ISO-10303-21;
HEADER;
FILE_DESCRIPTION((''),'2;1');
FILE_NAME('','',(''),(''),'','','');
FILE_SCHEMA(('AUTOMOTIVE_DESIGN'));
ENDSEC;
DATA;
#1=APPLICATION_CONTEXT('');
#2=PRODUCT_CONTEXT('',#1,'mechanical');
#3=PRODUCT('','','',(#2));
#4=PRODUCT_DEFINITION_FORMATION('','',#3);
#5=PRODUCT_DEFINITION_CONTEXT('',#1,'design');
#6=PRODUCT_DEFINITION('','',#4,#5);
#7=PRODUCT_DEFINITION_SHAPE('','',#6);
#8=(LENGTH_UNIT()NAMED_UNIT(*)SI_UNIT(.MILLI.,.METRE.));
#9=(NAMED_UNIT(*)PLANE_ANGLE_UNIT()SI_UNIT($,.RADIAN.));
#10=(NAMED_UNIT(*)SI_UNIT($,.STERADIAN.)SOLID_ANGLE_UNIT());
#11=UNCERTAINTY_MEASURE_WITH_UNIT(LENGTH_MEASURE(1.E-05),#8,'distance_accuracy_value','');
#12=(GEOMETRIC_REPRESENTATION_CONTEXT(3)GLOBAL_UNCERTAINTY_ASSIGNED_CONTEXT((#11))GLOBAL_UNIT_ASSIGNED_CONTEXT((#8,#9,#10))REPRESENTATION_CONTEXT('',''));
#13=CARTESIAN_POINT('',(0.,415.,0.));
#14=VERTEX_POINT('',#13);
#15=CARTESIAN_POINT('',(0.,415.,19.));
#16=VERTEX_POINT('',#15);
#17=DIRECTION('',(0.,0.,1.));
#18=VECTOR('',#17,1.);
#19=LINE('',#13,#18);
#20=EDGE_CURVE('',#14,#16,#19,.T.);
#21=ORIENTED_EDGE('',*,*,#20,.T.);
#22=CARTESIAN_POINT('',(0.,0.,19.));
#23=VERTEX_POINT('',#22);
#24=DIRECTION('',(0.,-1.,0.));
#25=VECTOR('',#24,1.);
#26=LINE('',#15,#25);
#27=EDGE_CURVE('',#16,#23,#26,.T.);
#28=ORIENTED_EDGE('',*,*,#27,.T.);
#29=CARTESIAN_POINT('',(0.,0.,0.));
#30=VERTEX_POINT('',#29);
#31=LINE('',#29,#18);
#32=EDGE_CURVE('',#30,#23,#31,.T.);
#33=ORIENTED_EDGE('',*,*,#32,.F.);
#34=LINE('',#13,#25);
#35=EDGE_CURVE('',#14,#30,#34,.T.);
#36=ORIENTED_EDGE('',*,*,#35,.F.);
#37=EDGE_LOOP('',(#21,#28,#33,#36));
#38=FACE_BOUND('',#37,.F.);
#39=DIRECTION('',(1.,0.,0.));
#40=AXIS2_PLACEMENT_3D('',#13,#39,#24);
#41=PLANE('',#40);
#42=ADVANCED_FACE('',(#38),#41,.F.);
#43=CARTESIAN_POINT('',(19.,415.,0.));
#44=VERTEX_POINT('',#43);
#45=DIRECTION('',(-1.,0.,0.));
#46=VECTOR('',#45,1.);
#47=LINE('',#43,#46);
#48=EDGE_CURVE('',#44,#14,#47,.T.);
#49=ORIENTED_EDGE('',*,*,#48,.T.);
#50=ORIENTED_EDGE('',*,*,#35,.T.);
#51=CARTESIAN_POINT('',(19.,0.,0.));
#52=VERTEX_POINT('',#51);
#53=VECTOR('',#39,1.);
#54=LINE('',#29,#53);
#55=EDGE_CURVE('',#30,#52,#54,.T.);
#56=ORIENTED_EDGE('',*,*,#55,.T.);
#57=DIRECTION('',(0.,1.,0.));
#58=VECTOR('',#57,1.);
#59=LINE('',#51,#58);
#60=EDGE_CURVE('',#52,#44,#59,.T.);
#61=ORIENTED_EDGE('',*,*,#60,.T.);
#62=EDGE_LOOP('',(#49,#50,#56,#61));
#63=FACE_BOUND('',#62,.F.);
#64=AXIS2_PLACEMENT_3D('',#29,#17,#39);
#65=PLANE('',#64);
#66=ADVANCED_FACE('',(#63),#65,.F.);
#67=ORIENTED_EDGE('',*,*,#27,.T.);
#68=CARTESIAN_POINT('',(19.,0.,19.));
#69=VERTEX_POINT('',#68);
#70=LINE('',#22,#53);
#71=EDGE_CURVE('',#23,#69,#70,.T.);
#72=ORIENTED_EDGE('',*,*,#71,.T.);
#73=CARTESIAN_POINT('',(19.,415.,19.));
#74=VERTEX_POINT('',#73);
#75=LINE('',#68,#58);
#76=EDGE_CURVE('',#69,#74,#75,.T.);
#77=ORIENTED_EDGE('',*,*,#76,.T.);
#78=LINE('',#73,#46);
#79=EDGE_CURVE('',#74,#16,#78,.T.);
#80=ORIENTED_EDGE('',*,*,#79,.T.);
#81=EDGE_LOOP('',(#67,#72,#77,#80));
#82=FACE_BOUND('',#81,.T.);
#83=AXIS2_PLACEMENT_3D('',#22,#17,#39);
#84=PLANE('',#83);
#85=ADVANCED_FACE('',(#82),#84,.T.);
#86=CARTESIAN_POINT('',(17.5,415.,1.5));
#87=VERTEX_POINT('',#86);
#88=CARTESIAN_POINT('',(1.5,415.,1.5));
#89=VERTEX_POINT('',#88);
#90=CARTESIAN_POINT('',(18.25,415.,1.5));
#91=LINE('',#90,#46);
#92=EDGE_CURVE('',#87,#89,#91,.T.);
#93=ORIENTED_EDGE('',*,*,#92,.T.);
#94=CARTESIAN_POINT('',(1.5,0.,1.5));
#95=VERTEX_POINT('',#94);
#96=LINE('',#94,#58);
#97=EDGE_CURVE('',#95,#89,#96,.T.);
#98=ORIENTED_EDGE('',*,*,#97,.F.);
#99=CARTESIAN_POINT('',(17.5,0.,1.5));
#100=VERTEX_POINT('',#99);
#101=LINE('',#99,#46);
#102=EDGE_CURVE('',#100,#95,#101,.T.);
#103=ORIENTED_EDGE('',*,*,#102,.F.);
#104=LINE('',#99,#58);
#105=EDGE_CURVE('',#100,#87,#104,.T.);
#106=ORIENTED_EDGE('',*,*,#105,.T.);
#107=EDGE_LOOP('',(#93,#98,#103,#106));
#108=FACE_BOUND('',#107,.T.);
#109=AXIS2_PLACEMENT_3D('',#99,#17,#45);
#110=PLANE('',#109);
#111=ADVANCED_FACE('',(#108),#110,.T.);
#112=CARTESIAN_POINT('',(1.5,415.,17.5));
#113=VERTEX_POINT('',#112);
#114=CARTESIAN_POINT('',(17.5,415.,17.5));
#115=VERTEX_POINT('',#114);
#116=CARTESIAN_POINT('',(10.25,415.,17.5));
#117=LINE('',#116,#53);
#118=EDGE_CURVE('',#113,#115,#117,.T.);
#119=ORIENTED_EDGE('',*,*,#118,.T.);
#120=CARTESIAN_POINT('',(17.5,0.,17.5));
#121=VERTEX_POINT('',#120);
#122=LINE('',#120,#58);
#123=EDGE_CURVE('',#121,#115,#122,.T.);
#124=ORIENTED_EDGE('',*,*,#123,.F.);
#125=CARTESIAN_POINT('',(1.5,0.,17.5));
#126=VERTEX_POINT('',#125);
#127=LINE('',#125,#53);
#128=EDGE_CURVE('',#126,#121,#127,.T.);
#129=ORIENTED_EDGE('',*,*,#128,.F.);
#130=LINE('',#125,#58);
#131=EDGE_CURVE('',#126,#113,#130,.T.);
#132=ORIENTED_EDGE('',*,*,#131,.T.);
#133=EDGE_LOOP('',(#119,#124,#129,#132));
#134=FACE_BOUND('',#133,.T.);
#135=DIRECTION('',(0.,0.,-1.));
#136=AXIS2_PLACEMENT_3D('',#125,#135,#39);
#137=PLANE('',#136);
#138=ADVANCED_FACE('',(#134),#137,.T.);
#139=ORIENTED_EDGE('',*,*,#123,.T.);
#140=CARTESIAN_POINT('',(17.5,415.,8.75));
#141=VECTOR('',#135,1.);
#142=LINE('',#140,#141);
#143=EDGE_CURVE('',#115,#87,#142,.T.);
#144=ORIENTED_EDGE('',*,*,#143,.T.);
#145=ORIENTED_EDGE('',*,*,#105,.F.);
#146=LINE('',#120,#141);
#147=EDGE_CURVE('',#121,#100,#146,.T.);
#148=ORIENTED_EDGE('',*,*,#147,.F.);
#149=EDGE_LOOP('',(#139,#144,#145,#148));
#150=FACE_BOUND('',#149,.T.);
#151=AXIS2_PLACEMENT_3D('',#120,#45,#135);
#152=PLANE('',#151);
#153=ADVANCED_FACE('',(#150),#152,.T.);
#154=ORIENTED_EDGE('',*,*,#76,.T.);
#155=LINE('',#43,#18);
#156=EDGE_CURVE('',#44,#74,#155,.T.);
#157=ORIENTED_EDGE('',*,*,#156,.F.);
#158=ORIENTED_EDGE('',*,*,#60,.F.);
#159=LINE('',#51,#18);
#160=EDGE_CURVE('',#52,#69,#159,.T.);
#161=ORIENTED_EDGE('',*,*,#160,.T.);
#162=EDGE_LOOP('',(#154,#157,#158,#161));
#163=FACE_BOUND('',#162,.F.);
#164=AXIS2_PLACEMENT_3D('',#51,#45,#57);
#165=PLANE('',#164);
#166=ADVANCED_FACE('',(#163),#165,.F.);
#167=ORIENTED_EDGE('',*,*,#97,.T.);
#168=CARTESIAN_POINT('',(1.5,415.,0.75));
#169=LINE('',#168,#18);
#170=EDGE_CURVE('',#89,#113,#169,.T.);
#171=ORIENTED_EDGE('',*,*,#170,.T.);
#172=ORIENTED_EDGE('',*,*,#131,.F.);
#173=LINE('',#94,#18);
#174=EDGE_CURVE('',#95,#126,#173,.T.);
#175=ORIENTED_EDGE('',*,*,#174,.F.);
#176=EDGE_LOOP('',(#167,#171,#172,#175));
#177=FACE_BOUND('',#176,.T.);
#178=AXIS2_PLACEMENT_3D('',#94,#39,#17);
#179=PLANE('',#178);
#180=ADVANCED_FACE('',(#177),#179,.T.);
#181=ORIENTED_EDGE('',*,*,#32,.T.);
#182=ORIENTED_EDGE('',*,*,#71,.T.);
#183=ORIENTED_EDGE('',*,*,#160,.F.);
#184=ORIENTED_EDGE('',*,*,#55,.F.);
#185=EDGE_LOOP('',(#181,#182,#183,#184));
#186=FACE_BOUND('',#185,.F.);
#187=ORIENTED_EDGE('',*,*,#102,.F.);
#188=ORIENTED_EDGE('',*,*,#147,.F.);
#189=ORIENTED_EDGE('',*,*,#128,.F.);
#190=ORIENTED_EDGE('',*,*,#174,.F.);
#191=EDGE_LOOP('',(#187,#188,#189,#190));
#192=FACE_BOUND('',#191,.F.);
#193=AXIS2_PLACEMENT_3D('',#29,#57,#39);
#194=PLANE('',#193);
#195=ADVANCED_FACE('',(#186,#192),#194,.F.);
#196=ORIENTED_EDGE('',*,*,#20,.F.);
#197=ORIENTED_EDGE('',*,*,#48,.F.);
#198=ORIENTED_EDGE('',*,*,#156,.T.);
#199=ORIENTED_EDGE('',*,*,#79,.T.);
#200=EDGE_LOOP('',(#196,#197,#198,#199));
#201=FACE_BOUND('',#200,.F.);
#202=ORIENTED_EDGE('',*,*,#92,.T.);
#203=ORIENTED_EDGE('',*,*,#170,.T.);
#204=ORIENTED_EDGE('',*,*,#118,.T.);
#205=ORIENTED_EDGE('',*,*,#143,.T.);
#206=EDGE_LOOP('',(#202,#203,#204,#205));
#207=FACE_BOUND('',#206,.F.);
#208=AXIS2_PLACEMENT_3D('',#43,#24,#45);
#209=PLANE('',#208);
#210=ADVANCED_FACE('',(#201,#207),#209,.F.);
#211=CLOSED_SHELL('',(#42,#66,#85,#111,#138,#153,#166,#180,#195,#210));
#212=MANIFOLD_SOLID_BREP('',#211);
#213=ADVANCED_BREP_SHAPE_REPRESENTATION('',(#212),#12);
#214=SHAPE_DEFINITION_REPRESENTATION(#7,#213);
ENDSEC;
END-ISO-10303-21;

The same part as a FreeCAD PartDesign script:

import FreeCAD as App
import Part
import Sketcher

doc = App.newDocument("Part")
params = doc.addObject("Spreadsheet::Sheet", "Params")
for row, (alias, value) in enumerate([
    ("sketch1_width", "19 mm"),
    ("sketch1_height", "415 mm"),
    ("pad1_length", "19 mm"),
    ("sketch2_width", "16 mm"),
], start=1):
    params.set(f"A{row}", alias)
    params.set(f"B{row}", "=" + value)
    params.setAlias(f"B{row}", alias)

body = doc.addObject("PartDesign::Body", "Body")

sketch1 = body.newObject("Sketcher::SketchObject", "Sketch")
sketch1.AttachmentSupport = (doc.getObject("XY_Plane"), [""])
sketch1.MapMode = "FlatFace"
sketch1.addGeometry(Part.LineSegment(App.Vector(0, 415, 0), App.Vector(0, 0, 0)), False)
sketch1.addGeometry(Part.LineSegment(App.Vector(0, 0, 0), App.Vector(19, 0, 0)), False)
sketch1.addGeometry(Part.LineSegment(App.Vector(19, 0, 0), App.Vector(19, 415, 0)), False)
sketch1.addGeometry(Part.LineSegment(App.Vector(19, 415, 0), App.Vector(0, 415, 0)), False)
sketch1.addConstraint(Sketcher.Constraint("Coincident", 0, 2, 1, 1))
sketch1.addConstraint(Sketcher.Constraint("Coincident", 1, 2, 2, 1))
sketch1.addConstraint(Sketcher.Constraint("Coincident", 2, 2, 3, 1))
sketch1.addConstraint(Sketcher.Constraint("Coincident", 3, 2, 0, 1))
sketch1.addConstraint(Sketcher.Constraint("Vertical", 0))
sketch1.addConstraint(Sketcher.Constraint("Horizontal", 1))
sketch1.addConstraint(Sketcher.Constraint("Vertical", 2))
sketch1.addConstraint(Sketcher.Constraint("Horizontal", 3))
sketch1.addConstraint(Sketcher.Constraint("Coincident", 0, 2, -1, 1))
sketch1.addConstraint(Sketcher.Constraint("DistanceX", 1, 1, 1, 2, 19.0))
sketch1.addConstraint(Sketcher.Constraint("DistanceY", 0, 2, 0, 1, 415.0))
sketch1.setExpression("Constraints[9]", "Params.sketch1_width")
sketch1.setExpression("Constraints[10]", "Params.sketch1_height")
pad1 = body.newObject("PartDesign::Pad", "Pad")
pad1.Profile = sketch1
pad1.setExpression("Length", "Params.pad1_length")

sketch2 = body.newObject("Sketcher::SketchObject", "Sketch001")
sketch2.AttachmentSupport = (doc.getObject("XZ_Plane"), [""])
sketch2.MapMode = "FlatFace"
sketch2.addGeometry(Part.LineSegment(App.Vector(17.5, 1.5, 0), App.Vector(17.5, 17.5, 0)), False)
sketch2.addGeometry(Part.LineSegment(App.Vector(17.5, 17.5, 0), App.Vector(1.5, 17.5, 0)), False)
sketch2.addGeometry(Part.LineSegment(App.Vector(1.5, 17.5, 0), App.Vector(1.5, 1.5, 0)), False)
sketch2.addGeometry(Part.LineSegment(App.Vector(1.5, 1.5, 0), App.Vector(17.5, 1.5, 0)), False)
sketch2.addConstraint(Sketcher.Constraint("Coincident", 0, 2, 1, 1))
sketch2.addConstraint(Sketcher.Constraint("Coincident", 1, 2, 2, 1))
sketch2.addConstraint(Sketcher.Constraint("Coincident", 2, 2, 3, 1))
sketch2.addConstraint(Sketcher.Constraint("Coincident", 3, 2, 0, 1))
sketch2.addConstraint(Sketcher.Constraint("Vertical", 0))
sketch2.addConstraint(Sketcher.Constraint("Horizontal", 1))
sketch2.addConstraint(Sketcher.Constraint("Vertical", 2))
sketch2.addConstraint(Sketcher.Constraint("Horizontal", 3))
sketch2.addConstraint(Sketcher.Constraint("Equal", 3, 0))
sketch2.addConstraint(Sketcher.Constraint("DistanceX", -1, 1, 1, 2, 1.5))
sketch2.addConstraint(Sketcher.Constraint("DistanceY", -1, 1, 2, 2, 1.5))
sketch2.addConstraint(Sketcher.Constraint("DistanceX", 1, 2, 1, 1, 16.0))
sketch2.setExpression("Constraints[11]", "Params.sketch2_width")
pocket1 = body.newObject("PartDesign::Pocket", "Pocket")
pocket1.Profile = sketch2
pocket1.Type = "ThroughAll"

doc.recompute()
